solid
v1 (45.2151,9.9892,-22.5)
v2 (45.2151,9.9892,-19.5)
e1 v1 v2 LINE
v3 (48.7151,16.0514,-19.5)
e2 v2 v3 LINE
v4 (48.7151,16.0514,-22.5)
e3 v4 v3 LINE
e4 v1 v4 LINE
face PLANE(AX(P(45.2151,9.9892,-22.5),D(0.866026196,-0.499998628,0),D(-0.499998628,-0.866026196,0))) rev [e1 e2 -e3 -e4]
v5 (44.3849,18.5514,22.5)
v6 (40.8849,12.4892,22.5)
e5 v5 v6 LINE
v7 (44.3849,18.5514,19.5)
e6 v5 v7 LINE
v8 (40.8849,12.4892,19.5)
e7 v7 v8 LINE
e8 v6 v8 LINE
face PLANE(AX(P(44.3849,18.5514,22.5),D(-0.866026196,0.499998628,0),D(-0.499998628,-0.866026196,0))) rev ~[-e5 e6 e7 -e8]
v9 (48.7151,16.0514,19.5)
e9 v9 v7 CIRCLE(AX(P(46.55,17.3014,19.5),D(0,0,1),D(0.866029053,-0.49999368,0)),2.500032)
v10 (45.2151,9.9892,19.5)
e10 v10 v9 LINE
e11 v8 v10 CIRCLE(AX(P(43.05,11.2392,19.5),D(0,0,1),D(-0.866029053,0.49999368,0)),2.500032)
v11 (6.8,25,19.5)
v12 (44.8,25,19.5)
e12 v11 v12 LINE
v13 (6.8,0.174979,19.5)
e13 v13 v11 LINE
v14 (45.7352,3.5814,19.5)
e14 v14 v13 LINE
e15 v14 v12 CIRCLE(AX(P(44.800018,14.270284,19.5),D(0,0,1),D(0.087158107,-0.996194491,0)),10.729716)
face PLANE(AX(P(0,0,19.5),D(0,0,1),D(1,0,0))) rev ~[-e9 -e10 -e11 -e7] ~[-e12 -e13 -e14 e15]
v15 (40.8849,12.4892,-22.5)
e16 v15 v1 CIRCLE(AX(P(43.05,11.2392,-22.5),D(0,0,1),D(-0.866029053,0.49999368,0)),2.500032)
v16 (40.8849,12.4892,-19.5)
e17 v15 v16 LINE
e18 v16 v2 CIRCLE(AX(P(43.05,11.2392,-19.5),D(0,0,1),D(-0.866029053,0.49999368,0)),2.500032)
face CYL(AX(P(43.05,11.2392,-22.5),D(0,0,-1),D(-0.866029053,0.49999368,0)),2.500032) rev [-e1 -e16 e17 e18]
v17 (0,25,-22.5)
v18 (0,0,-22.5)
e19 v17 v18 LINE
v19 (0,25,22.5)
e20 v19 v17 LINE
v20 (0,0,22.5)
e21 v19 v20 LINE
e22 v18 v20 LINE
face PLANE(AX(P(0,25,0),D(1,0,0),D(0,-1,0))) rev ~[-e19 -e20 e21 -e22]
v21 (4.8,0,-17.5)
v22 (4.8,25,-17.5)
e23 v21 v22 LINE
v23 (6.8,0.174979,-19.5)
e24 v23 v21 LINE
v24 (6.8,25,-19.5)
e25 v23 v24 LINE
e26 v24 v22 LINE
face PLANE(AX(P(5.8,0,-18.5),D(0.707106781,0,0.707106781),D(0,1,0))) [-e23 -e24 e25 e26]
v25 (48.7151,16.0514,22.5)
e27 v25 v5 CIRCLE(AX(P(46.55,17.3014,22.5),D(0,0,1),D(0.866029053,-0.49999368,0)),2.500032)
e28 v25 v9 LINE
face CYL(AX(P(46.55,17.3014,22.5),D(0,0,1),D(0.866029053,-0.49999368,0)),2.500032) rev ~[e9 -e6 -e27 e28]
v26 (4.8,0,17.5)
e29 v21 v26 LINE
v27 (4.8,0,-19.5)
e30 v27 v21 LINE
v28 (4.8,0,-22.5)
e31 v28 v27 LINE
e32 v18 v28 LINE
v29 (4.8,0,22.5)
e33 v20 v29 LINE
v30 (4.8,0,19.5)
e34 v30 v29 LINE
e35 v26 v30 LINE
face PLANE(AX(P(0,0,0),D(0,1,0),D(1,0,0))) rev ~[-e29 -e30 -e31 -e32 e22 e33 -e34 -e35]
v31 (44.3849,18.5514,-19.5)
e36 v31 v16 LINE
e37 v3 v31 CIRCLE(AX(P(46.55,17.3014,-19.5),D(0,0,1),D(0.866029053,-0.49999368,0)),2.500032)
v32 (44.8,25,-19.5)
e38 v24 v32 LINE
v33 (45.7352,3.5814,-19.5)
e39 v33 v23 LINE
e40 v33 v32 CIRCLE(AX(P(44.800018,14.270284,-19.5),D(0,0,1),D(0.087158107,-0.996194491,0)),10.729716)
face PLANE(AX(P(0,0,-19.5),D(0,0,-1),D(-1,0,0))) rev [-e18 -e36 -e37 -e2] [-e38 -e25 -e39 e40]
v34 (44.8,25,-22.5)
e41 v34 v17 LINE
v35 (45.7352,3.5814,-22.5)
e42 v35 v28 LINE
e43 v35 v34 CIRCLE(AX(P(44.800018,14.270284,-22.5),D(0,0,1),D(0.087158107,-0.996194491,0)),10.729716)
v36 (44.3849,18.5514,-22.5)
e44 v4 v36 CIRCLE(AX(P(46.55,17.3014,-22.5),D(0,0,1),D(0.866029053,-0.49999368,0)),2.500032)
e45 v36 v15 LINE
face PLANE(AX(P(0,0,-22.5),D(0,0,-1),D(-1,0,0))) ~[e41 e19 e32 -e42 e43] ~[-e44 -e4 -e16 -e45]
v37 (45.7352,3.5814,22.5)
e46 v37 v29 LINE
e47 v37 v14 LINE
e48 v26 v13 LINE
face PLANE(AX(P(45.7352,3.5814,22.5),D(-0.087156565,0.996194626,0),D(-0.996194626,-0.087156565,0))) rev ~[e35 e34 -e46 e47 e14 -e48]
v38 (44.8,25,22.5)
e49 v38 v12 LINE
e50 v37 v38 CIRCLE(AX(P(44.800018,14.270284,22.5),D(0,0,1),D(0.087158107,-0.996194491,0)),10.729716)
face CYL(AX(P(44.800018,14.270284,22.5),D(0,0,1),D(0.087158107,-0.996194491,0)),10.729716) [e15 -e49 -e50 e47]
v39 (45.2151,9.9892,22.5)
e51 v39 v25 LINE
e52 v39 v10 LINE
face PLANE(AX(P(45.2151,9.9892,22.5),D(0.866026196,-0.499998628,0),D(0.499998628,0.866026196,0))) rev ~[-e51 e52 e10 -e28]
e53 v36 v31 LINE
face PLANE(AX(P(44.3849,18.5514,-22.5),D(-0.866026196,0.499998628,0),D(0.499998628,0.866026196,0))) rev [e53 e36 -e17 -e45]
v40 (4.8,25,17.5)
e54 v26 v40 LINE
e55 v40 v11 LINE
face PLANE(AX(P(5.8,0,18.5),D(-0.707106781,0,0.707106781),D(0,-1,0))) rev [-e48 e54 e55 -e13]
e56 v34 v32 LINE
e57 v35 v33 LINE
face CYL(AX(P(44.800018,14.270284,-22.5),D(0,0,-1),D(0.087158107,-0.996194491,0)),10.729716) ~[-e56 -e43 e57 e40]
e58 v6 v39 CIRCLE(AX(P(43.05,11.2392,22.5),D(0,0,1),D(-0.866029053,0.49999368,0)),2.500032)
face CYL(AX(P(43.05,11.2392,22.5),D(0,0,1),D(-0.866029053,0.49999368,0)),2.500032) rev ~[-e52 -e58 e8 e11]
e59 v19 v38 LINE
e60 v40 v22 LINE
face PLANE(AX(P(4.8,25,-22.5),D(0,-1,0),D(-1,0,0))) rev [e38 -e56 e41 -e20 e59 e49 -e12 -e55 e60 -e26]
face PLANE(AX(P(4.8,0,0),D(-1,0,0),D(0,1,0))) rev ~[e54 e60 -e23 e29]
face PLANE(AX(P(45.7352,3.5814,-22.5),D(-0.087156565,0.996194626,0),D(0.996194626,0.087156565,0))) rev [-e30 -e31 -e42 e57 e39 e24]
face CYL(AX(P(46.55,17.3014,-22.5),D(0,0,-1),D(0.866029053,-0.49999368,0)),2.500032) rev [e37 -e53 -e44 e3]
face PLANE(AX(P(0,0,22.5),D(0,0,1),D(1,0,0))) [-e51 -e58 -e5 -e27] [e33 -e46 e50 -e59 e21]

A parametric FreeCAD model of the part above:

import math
import FreeCAD as App
import Part
import Sketcher

V = App.Vector
Q = App.Units.Quantity


def edges_at(feature, points):
    """Names of the edges that pass closest to the given points."""
    edges = feature.Shape.Edges
    near = lambda p: min(range(len(edges)), key=lambda i: edges[i].distToShape(Part.Vertex(*p))[0])
    return sorted({f"Edge{near(p) + 1}" for p in points})


def add_polygon(sketch, points):
    """Adds a closed chain of lines whose ends are joined by coincident constraints."""
    first, n = sketch.GeometryCount, len(points)
    for a, b in zip(points, points[1:] + points[:1]):
        sketch.addGeometry(Part.LineSegment(App.Vector(*a, 0), App.Vector(*b, 0)), False)
    for i in range(n):
        sketch.addConstraint(Sketcher.Constraint("Coincident", first + i, 2, first + (i + 1) % n, 1))

doc = App.newDocument("Part")
params = doc.addObject("Spreadsheet::Sheet", "Params")
for row, (alias, value) in enumerate([
    ("sketch1_height", "25 mm"),
    ("sketch1_width", "4.8 mm"),
    ("pad1_length", "45 mm"),
    ("sketch2_radius", "2.5 mm"),
    ("sketch2_width", "40 mm"),
    ("sketch2_length", "7 mm"),
    ("sketch2_height", "25 mm"),
    ("pad2_length", "3 mm"),
    ("chamfer_size", "2 mm"),
], start=1):
    params.set(f"A{row}", alias)
    params.set(f"B{row}", "=" + value)
    params.setAlias(f"B{row}", alias)

body = doc.addObject("PartDesign::Body", "Body")

# Sketch on XY plane
sketch1 = doc.addObject("Sketcher::SketchObject", "Sketch")
body.addObject(sketch1)
sketch1.AttachmentSupport = (doc.XY_Plane, [""])
sketch1.MapMode = "FlatFace"
add_polygon(sketch1, [(0, 25), (0, 0), (4.8, 0), (4.8, 25)])  # lines 0-3
sketch1.addConstraint(Sketcher.Constraint("Vertical", 0))
sketch1.addConstraint(Sketcher.Constraint("Horizontal", 1))
sketch1.addConstraint(Sketcher.Constraint("Vertical", 2))
sketch1.addConstraint(Sketcher.Constraint("Horizontal", 3))
sketch1.addConstraint(Sketcher.Constraint("Coincident", 0, 2, -1, 1))
sketch1.addConstraint(Sketcher.Constraint("DistanceY", 0, 2, 0, 1, 25.0))
sketch1.addConstraint(Sketcher.Constraint("DistanceX", 1, 1, 1, 2, 4.8))
sketch1.setExpression("Constraints[9]", "Params.sketch1_height")
sketch1.setExpression("Constraints[10]", "Params.sketch1_width")
pad1 = doc.addObject("PartDesign::Pad", "Pad")
body.addObject(pad1)
pad1.Profile = sketch1
pad1.setExpression("Length", "Params.pad1_length")
pad1.Midplane = True

# Sketch on XY plane
sketch2 = doc.addObject("Sketcher::SketchObject", "Sketch001")
body.addObject(sketch2)
sketch2.AttachmentSupport = (doc.XY_Plane, [""])
sketch2.MapMode = "FlatFace"
sketch2.AttachmentOffset = App.Placement(V(0, 0, 22.5), App.Rotation())
sketch2.addGeometry(Part.LineSegment(V(4.8, 25, 0), V(4.8, 0, 0)), False)
sketch2.addGeometry(Part.LineSegment(V(4.8, 0, 0), V(45.7, 3.6, 0)), False)
sketch2.addGeometry(Part.ArcOfCircle(Part.Circle(V(44.8, 14.3, 0), V(0, 0, 1), 10.7), math.radians(-85), math.radians(90)), False)
sketch2.addGeometry(Part.LineSegment(V(44.8, 25, 0), V(4.8, 25, 0)), False)
sketch2.addGeometry(Part.LineSegment(V(40.9, 12.5, 0), V(44.4, 18.6, 0)), False)
sketch2.addGeometry(Part.ArcOfCircle(Part.Circle(V(46.5, 17.3, 0), V(0, 0, 1), 2.5), math.radians(-30), math.radians(150)), False)
sketch2.addGeometry(Part.LineSegment(V(48.7, 16.1, 0), V(45.2, 10, 0)), False)
sketch2.addGeometry(Part.ArcOfCircle(Part.Circle(V(43, 11.2, 0), V(0, 0, 1), 2.5), math.radians(150), math.radians(330)), False)
sketch2.addConstraint(Sketcher.Constraint("Coincident", 0, 2, 1, 1))
sketch2.addConstraint(Sketcher.Constraint("Tangent", 1, 2, 2, 1))
sketch2.addConstraint(Sketcher.Constraint("Tangent", 2, 2, 3, 1))
sketch2.addConstraint(Sketcher.Constraint("Coincident", 3, 2, 0, 1))
sketch2.addConstraint(Sketcher.Constraint("Tangent", 4, 2, 5, 2))
sketch2.addConstraint(Sketcher.Constraint("Tangent", 5, 1, 6, 1))
sketch2.addConstraint(Sketcher.Constraint("Tangent", 6, 2, 7, 2))
sketch2.addConstraint(Sketcher.Constraint("Tangent", 7, 1, 4, 1))
sketch2.addConstraint(Sketcher.Constraint("Vertical", 0))
sketch2.addConstraint(Sketcher.Constraint("Horizontal", 3))
sketch2.addConstraint(Sketcher.Constraint("Equal", 5, 7))
sketch2.addConstraint(Sketcher.Constraint("PointOnObject", 0, 2, -1))
sketch2.addConstraint(Sketcher.Constraint("Radius", 5, 2.5))
sketch2.addConstraint(Sketcher.Constraint("DistanceX", 3, 2, 3, 1, 40.0))
sketch2.addConstraint(Sketcher.Constraint("Angle", 1, Q("5 deg")))
sketch2.addConstraint(Sketcher.Constraint("Distance", 4, 7.0))
sketch2.addConstraint(Sketcher.Constraint("DistanceY", 0, 2, 0, 1, 25.0))
sketch2.addConstraint(Sketcher.Constraint("Angle", 4, Q("60 deg")))
sketch2.addConstraint(Sketcher.Constraint("DistanceX", -1, 1, 2, 3, 44.8))
sketch2.addConstraint(Sketcher.Constraint("DistanceX", -1, 1, 5, 3, 46.55))
sketch2.addConstraint(Sketcher.Constraint("DistanceY", 1, 2, 5, 3, 13.72))
sketch2.setExpression("Constraints[12]", "Params.sketch2_radius")
sketch2.setExpression("Constraints[13]", "Params.sketch2_width")
sketch2.setExpression("Constraints[15]", "Params.sketch2_length")
sketch2.setExpression("Constraints[16]", "Params.sketch2_height")
pad2 = doc.addObject("PartDesign::Pad", "Pad001")
body.addObject(pad2)
pad2.Profile = sketch2
pad2.setExpression("Length", "Params.pad2_length")
pad2.Reversed = True
doc.recompute()

mirrored = doc.addObject("PartDesign::Mirrored", "Mirrored")
body.addObject(mirrored)
mirrored.Originals = [pad2]
mirrored.MirrorPlane = (doc.XY_Plane, [""])
body.Tip = mirrored
doc.recompute()

chamfer = doc.addObject("PartDesign::Chamfer", "Chamfer")
body.addObject(chamfer)
chamfer.Base = (mirrored, edges_at(mirrored, [(4.8, 12.5, 19.5), (4.8, 12.5, -19.5)]))
chamfer.setExpression("Size", "Params.chamfer_size")

doc.recompute()
